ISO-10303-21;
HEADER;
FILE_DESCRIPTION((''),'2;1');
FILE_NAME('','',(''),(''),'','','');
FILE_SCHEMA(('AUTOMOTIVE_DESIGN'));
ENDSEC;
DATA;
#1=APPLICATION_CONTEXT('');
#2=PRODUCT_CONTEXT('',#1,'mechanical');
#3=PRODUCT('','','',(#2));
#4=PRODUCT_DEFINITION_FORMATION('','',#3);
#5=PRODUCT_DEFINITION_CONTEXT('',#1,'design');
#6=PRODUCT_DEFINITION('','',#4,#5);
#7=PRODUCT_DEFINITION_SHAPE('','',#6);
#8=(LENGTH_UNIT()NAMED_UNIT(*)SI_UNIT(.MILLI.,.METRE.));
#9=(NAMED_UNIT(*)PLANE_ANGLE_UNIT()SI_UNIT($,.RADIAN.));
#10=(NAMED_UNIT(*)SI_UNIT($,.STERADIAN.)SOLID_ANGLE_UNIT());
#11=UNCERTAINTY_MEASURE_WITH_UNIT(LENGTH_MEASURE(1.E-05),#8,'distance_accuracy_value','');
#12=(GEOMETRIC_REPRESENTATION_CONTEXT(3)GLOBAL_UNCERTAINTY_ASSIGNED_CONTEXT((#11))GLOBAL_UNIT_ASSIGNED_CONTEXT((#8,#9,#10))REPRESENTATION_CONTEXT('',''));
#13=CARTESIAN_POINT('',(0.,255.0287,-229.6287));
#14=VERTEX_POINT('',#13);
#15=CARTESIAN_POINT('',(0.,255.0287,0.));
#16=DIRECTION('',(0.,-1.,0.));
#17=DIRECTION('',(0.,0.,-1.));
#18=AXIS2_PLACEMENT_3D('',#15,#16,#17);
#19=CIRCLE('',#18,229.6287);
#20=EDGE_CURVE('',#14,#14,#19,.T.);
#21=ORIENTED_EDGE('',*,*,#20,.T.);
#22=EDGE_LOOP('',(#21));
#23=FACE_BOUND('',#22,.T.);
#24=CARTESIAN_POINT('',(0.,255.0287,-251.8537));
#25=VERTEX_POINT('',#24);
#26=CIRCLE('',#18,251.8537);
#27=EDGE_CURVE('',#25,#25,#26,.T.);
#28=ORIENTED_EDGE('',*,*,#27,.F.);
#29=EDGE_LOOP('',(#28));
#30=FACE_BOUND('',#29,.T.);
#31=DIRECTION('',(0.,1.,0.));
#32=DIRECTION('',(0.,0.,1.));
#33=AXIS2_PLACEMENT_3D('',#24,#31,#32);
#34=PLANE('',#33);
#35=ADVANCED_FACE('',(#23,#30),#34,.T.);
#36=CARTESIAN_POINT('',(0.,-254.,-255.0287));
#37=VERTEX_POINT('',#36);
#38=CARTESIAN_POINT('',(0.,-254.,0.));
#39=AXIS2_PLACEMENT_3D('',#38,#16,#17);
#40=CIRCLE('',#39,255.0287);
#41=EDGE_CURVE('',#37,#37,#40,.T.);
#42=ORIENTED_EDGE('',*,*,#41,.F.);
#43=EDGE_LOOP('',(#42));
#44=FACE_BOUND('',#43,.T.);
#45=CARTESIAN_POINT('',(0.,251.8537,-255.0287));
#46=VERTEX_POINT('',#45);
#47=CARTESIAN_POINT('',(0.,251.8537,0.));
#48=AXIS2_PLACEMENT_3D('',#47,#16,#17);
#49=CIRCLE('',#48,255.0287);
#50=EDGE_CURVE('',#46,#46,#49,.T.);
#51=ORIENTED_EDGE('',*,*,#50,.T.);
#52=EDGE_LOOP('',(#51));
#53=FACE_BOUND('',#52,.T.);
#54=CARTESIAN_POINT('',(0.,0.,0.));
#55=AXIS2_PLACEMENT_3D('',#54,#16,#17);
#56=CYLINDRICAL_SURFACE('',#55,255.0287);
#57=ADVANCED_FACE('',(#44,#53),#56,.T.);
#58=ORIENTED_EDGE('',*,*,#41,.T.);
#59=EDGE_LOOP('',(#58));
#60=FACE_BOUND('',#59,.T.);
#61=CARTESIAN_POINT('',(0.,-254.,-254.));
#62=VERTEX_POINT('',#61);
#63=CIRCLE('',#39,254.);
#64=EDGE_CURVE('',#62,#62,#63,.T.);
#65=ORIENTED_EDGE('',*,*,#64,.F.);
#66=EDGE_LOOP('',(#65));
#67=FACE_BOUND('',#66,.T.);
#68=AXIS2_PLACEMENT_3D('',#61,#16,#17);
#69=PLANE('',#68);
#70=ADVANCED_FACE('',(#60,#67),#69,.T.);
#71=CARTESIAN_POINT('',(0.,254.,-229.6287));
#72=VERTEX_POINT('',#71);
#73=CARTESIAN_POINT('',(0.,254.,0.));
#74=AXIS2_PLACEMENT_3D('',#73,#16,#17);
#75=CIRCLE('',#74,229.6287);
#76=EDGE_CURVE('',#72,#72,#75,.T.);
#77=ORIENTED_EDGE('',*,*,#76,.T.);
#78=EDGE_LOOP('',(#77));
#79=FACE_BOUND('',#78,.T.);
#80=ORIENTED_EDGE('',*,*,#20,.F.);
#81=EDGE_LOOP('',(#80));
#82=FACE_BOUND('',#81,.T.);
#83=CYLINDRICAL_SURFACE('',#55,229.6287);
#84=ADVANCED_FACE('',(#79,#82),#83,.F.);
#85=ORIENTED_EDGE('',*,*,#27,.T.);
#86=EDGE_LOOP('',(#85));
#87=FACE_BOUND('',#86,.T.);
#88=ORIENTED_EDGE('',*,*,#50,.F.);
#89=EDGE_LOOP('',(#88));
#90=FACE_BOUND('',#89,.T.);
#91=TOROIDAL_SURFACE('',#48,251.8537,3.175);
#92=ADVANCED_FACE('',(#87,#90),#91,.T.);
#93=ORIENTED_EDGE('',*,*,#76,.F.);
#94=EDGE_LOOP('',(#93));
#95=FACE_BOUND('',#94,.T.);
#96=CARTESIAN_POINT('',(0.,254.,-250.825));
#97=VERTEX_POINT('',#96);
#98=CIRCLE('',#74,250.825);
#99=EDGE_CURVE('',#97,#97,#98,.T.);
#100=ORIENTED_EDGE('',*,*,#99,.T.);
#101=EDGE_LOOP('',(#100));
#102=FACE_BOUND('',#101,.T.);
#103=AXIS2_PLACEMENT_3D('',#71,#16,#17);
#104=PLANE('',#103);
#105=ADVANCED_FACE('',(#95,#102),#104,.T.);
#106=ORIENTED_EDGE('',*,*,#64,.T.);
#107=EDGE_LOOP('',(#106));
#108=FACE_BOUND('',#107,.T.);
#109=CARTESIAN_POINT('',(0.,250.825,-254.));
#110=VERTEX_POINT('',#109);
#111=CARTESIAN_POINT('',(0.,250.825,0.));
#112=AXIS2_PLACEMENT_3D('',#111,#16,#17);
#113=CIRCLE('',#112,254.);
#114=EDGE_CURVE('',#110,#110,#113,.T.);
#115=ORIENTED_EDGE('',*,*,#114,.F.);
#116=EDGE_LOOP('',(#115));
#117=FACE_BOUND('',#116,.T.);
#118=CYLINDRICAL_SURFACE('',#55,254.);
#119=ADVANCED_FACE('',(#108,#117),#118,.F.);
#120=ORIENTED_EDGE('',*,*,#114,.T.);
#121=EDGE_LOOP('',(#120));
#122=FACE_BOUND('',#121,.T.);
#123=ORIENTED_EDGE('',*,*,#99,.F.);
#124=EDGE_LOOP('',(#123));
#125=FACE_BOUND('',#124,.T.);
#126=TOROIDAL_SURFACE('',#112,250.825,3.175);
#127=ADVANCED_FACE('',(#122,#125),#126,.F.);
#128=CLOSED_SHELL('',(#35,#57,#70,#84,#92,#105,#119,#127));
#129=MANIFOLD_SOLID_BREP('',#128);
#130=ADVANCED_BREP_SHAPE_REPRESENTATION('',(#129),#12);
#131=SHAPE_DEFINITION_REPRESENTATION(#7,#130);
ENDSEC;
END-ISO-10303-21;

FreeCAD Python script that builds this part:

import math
import FreeCAD as App
import Part
import Sketcher

V = App.Vector
Q = App.Units.Quantity

doc = App.newDocument("Part")
body = doc.addObject("PartDesign::Body", "Body")

# Sketch on YZ plane
sketch1 = doc.addObject("Sketcher::SketchObject", "Sketch")
body.addObject(sketch1)
sketch1.AttachmentSupport = (doc.YZ_Plane, [""])
sketch1.MapMode = "FlatFace"
sketch1.addGeometry([
    Part.LineSegment(V(-254, -254, 0), V(-254, -255.0287, 0)),  # 0
    Part.LineSegment(V(-254, -255.0287, 0), V(251.8537, -255.0287, 0)),  # 1
    Part.ArcOfCircle(Part.Circle(V(251.8537, -251.8537, 0), V(0, 0, 1), 3.175), math.radians(-90), math.radians(0)),  # 2
    Part.LineSegment(V(255.0287, -251.8537, 0), V(255.0287, -229.6287, 0)),  # 3
    Part.LineSegment(V(255.0287, -229.6287, 0), V(254, -229.6287, 0)),  # 4
    Part.LineSegment(V(254, -229.6287, 0), V(254, -250.825, 0)),  # 5
    Part.ArcOfCircle(Part.Circle(V(250.825, -250.825, 0), V(0, 0, 1), 3.175), math.radians(-90), math.radians(0)),  # 6
    Part.LineSegment(V(250.825, -254, 0), V(-254, -254, 0)),  # 7
], False)
sketch1.addConstraint([
    Sketcher.Constraint("Coincident", 0, 2, 1, 1),
    Sketcher.Constraint("Tangent", 1, 2, 2, 1),
    Sketcher.Constraint("Tangent", 2, 2, 3, 1),
    Sketcher.Constraint("Coincident", 3, 2, 4, 1),
    Sketcher.Constraint("Coincident", 4, 2, 5, 1),
    Sketcher.Constraint("Tangent", 5, 2, 6, 2),
    Sketcher.Constraint("Tangent", 6, 1, 7, 1),
    Sketcher.Constraint("Coincident", 7, 2, 0, 1),
    Sketcher.Constraint("Vertical", 0),
    Sketcher.Constraint("Horizontal", 1),
    Sketcher.Constraint("Vertical", 3),
    Sketcher.Constraint("Horizontal", 4),
    Sketcher.Constraint("Vertical", 5),
    Sketcher.Constraint("Horizontal", 7),
    Sketcher.Constraint("Equal", 2, 6),
    Sketcher.Constraint("Equal", 4, 0),
    Sketcher.Constraint("DistanceX", 0, 2, -1, 1, Q("10 in")),
    Sketcher.Constraint("DistanceX", -1, 1, 4, 2, Q("10 in")),
    Sketcher.Constraint("DistanceY", 6, 1, -1, 1, Q("10 in")),
    Sketcher.Constraint("Radius", 2, Q("0.125 in")),
    Sketcher.Constraint("DistanceY", 1, 2, 3, 2, Q("1 in")),
    Sketcher.Constraint("DistanceX", 1, 1, 1, 2, Q("19.9155 in")),
])
revolution = doc.addObject("PartDesign::Revolution", "Revolution")
body.addObject(revolution)
revolution.Profile = sketch1
revolution.ReferenceAxis = (sketch1, ["H_Axis"])
revolution.Angle = 360

doc.recompute()
